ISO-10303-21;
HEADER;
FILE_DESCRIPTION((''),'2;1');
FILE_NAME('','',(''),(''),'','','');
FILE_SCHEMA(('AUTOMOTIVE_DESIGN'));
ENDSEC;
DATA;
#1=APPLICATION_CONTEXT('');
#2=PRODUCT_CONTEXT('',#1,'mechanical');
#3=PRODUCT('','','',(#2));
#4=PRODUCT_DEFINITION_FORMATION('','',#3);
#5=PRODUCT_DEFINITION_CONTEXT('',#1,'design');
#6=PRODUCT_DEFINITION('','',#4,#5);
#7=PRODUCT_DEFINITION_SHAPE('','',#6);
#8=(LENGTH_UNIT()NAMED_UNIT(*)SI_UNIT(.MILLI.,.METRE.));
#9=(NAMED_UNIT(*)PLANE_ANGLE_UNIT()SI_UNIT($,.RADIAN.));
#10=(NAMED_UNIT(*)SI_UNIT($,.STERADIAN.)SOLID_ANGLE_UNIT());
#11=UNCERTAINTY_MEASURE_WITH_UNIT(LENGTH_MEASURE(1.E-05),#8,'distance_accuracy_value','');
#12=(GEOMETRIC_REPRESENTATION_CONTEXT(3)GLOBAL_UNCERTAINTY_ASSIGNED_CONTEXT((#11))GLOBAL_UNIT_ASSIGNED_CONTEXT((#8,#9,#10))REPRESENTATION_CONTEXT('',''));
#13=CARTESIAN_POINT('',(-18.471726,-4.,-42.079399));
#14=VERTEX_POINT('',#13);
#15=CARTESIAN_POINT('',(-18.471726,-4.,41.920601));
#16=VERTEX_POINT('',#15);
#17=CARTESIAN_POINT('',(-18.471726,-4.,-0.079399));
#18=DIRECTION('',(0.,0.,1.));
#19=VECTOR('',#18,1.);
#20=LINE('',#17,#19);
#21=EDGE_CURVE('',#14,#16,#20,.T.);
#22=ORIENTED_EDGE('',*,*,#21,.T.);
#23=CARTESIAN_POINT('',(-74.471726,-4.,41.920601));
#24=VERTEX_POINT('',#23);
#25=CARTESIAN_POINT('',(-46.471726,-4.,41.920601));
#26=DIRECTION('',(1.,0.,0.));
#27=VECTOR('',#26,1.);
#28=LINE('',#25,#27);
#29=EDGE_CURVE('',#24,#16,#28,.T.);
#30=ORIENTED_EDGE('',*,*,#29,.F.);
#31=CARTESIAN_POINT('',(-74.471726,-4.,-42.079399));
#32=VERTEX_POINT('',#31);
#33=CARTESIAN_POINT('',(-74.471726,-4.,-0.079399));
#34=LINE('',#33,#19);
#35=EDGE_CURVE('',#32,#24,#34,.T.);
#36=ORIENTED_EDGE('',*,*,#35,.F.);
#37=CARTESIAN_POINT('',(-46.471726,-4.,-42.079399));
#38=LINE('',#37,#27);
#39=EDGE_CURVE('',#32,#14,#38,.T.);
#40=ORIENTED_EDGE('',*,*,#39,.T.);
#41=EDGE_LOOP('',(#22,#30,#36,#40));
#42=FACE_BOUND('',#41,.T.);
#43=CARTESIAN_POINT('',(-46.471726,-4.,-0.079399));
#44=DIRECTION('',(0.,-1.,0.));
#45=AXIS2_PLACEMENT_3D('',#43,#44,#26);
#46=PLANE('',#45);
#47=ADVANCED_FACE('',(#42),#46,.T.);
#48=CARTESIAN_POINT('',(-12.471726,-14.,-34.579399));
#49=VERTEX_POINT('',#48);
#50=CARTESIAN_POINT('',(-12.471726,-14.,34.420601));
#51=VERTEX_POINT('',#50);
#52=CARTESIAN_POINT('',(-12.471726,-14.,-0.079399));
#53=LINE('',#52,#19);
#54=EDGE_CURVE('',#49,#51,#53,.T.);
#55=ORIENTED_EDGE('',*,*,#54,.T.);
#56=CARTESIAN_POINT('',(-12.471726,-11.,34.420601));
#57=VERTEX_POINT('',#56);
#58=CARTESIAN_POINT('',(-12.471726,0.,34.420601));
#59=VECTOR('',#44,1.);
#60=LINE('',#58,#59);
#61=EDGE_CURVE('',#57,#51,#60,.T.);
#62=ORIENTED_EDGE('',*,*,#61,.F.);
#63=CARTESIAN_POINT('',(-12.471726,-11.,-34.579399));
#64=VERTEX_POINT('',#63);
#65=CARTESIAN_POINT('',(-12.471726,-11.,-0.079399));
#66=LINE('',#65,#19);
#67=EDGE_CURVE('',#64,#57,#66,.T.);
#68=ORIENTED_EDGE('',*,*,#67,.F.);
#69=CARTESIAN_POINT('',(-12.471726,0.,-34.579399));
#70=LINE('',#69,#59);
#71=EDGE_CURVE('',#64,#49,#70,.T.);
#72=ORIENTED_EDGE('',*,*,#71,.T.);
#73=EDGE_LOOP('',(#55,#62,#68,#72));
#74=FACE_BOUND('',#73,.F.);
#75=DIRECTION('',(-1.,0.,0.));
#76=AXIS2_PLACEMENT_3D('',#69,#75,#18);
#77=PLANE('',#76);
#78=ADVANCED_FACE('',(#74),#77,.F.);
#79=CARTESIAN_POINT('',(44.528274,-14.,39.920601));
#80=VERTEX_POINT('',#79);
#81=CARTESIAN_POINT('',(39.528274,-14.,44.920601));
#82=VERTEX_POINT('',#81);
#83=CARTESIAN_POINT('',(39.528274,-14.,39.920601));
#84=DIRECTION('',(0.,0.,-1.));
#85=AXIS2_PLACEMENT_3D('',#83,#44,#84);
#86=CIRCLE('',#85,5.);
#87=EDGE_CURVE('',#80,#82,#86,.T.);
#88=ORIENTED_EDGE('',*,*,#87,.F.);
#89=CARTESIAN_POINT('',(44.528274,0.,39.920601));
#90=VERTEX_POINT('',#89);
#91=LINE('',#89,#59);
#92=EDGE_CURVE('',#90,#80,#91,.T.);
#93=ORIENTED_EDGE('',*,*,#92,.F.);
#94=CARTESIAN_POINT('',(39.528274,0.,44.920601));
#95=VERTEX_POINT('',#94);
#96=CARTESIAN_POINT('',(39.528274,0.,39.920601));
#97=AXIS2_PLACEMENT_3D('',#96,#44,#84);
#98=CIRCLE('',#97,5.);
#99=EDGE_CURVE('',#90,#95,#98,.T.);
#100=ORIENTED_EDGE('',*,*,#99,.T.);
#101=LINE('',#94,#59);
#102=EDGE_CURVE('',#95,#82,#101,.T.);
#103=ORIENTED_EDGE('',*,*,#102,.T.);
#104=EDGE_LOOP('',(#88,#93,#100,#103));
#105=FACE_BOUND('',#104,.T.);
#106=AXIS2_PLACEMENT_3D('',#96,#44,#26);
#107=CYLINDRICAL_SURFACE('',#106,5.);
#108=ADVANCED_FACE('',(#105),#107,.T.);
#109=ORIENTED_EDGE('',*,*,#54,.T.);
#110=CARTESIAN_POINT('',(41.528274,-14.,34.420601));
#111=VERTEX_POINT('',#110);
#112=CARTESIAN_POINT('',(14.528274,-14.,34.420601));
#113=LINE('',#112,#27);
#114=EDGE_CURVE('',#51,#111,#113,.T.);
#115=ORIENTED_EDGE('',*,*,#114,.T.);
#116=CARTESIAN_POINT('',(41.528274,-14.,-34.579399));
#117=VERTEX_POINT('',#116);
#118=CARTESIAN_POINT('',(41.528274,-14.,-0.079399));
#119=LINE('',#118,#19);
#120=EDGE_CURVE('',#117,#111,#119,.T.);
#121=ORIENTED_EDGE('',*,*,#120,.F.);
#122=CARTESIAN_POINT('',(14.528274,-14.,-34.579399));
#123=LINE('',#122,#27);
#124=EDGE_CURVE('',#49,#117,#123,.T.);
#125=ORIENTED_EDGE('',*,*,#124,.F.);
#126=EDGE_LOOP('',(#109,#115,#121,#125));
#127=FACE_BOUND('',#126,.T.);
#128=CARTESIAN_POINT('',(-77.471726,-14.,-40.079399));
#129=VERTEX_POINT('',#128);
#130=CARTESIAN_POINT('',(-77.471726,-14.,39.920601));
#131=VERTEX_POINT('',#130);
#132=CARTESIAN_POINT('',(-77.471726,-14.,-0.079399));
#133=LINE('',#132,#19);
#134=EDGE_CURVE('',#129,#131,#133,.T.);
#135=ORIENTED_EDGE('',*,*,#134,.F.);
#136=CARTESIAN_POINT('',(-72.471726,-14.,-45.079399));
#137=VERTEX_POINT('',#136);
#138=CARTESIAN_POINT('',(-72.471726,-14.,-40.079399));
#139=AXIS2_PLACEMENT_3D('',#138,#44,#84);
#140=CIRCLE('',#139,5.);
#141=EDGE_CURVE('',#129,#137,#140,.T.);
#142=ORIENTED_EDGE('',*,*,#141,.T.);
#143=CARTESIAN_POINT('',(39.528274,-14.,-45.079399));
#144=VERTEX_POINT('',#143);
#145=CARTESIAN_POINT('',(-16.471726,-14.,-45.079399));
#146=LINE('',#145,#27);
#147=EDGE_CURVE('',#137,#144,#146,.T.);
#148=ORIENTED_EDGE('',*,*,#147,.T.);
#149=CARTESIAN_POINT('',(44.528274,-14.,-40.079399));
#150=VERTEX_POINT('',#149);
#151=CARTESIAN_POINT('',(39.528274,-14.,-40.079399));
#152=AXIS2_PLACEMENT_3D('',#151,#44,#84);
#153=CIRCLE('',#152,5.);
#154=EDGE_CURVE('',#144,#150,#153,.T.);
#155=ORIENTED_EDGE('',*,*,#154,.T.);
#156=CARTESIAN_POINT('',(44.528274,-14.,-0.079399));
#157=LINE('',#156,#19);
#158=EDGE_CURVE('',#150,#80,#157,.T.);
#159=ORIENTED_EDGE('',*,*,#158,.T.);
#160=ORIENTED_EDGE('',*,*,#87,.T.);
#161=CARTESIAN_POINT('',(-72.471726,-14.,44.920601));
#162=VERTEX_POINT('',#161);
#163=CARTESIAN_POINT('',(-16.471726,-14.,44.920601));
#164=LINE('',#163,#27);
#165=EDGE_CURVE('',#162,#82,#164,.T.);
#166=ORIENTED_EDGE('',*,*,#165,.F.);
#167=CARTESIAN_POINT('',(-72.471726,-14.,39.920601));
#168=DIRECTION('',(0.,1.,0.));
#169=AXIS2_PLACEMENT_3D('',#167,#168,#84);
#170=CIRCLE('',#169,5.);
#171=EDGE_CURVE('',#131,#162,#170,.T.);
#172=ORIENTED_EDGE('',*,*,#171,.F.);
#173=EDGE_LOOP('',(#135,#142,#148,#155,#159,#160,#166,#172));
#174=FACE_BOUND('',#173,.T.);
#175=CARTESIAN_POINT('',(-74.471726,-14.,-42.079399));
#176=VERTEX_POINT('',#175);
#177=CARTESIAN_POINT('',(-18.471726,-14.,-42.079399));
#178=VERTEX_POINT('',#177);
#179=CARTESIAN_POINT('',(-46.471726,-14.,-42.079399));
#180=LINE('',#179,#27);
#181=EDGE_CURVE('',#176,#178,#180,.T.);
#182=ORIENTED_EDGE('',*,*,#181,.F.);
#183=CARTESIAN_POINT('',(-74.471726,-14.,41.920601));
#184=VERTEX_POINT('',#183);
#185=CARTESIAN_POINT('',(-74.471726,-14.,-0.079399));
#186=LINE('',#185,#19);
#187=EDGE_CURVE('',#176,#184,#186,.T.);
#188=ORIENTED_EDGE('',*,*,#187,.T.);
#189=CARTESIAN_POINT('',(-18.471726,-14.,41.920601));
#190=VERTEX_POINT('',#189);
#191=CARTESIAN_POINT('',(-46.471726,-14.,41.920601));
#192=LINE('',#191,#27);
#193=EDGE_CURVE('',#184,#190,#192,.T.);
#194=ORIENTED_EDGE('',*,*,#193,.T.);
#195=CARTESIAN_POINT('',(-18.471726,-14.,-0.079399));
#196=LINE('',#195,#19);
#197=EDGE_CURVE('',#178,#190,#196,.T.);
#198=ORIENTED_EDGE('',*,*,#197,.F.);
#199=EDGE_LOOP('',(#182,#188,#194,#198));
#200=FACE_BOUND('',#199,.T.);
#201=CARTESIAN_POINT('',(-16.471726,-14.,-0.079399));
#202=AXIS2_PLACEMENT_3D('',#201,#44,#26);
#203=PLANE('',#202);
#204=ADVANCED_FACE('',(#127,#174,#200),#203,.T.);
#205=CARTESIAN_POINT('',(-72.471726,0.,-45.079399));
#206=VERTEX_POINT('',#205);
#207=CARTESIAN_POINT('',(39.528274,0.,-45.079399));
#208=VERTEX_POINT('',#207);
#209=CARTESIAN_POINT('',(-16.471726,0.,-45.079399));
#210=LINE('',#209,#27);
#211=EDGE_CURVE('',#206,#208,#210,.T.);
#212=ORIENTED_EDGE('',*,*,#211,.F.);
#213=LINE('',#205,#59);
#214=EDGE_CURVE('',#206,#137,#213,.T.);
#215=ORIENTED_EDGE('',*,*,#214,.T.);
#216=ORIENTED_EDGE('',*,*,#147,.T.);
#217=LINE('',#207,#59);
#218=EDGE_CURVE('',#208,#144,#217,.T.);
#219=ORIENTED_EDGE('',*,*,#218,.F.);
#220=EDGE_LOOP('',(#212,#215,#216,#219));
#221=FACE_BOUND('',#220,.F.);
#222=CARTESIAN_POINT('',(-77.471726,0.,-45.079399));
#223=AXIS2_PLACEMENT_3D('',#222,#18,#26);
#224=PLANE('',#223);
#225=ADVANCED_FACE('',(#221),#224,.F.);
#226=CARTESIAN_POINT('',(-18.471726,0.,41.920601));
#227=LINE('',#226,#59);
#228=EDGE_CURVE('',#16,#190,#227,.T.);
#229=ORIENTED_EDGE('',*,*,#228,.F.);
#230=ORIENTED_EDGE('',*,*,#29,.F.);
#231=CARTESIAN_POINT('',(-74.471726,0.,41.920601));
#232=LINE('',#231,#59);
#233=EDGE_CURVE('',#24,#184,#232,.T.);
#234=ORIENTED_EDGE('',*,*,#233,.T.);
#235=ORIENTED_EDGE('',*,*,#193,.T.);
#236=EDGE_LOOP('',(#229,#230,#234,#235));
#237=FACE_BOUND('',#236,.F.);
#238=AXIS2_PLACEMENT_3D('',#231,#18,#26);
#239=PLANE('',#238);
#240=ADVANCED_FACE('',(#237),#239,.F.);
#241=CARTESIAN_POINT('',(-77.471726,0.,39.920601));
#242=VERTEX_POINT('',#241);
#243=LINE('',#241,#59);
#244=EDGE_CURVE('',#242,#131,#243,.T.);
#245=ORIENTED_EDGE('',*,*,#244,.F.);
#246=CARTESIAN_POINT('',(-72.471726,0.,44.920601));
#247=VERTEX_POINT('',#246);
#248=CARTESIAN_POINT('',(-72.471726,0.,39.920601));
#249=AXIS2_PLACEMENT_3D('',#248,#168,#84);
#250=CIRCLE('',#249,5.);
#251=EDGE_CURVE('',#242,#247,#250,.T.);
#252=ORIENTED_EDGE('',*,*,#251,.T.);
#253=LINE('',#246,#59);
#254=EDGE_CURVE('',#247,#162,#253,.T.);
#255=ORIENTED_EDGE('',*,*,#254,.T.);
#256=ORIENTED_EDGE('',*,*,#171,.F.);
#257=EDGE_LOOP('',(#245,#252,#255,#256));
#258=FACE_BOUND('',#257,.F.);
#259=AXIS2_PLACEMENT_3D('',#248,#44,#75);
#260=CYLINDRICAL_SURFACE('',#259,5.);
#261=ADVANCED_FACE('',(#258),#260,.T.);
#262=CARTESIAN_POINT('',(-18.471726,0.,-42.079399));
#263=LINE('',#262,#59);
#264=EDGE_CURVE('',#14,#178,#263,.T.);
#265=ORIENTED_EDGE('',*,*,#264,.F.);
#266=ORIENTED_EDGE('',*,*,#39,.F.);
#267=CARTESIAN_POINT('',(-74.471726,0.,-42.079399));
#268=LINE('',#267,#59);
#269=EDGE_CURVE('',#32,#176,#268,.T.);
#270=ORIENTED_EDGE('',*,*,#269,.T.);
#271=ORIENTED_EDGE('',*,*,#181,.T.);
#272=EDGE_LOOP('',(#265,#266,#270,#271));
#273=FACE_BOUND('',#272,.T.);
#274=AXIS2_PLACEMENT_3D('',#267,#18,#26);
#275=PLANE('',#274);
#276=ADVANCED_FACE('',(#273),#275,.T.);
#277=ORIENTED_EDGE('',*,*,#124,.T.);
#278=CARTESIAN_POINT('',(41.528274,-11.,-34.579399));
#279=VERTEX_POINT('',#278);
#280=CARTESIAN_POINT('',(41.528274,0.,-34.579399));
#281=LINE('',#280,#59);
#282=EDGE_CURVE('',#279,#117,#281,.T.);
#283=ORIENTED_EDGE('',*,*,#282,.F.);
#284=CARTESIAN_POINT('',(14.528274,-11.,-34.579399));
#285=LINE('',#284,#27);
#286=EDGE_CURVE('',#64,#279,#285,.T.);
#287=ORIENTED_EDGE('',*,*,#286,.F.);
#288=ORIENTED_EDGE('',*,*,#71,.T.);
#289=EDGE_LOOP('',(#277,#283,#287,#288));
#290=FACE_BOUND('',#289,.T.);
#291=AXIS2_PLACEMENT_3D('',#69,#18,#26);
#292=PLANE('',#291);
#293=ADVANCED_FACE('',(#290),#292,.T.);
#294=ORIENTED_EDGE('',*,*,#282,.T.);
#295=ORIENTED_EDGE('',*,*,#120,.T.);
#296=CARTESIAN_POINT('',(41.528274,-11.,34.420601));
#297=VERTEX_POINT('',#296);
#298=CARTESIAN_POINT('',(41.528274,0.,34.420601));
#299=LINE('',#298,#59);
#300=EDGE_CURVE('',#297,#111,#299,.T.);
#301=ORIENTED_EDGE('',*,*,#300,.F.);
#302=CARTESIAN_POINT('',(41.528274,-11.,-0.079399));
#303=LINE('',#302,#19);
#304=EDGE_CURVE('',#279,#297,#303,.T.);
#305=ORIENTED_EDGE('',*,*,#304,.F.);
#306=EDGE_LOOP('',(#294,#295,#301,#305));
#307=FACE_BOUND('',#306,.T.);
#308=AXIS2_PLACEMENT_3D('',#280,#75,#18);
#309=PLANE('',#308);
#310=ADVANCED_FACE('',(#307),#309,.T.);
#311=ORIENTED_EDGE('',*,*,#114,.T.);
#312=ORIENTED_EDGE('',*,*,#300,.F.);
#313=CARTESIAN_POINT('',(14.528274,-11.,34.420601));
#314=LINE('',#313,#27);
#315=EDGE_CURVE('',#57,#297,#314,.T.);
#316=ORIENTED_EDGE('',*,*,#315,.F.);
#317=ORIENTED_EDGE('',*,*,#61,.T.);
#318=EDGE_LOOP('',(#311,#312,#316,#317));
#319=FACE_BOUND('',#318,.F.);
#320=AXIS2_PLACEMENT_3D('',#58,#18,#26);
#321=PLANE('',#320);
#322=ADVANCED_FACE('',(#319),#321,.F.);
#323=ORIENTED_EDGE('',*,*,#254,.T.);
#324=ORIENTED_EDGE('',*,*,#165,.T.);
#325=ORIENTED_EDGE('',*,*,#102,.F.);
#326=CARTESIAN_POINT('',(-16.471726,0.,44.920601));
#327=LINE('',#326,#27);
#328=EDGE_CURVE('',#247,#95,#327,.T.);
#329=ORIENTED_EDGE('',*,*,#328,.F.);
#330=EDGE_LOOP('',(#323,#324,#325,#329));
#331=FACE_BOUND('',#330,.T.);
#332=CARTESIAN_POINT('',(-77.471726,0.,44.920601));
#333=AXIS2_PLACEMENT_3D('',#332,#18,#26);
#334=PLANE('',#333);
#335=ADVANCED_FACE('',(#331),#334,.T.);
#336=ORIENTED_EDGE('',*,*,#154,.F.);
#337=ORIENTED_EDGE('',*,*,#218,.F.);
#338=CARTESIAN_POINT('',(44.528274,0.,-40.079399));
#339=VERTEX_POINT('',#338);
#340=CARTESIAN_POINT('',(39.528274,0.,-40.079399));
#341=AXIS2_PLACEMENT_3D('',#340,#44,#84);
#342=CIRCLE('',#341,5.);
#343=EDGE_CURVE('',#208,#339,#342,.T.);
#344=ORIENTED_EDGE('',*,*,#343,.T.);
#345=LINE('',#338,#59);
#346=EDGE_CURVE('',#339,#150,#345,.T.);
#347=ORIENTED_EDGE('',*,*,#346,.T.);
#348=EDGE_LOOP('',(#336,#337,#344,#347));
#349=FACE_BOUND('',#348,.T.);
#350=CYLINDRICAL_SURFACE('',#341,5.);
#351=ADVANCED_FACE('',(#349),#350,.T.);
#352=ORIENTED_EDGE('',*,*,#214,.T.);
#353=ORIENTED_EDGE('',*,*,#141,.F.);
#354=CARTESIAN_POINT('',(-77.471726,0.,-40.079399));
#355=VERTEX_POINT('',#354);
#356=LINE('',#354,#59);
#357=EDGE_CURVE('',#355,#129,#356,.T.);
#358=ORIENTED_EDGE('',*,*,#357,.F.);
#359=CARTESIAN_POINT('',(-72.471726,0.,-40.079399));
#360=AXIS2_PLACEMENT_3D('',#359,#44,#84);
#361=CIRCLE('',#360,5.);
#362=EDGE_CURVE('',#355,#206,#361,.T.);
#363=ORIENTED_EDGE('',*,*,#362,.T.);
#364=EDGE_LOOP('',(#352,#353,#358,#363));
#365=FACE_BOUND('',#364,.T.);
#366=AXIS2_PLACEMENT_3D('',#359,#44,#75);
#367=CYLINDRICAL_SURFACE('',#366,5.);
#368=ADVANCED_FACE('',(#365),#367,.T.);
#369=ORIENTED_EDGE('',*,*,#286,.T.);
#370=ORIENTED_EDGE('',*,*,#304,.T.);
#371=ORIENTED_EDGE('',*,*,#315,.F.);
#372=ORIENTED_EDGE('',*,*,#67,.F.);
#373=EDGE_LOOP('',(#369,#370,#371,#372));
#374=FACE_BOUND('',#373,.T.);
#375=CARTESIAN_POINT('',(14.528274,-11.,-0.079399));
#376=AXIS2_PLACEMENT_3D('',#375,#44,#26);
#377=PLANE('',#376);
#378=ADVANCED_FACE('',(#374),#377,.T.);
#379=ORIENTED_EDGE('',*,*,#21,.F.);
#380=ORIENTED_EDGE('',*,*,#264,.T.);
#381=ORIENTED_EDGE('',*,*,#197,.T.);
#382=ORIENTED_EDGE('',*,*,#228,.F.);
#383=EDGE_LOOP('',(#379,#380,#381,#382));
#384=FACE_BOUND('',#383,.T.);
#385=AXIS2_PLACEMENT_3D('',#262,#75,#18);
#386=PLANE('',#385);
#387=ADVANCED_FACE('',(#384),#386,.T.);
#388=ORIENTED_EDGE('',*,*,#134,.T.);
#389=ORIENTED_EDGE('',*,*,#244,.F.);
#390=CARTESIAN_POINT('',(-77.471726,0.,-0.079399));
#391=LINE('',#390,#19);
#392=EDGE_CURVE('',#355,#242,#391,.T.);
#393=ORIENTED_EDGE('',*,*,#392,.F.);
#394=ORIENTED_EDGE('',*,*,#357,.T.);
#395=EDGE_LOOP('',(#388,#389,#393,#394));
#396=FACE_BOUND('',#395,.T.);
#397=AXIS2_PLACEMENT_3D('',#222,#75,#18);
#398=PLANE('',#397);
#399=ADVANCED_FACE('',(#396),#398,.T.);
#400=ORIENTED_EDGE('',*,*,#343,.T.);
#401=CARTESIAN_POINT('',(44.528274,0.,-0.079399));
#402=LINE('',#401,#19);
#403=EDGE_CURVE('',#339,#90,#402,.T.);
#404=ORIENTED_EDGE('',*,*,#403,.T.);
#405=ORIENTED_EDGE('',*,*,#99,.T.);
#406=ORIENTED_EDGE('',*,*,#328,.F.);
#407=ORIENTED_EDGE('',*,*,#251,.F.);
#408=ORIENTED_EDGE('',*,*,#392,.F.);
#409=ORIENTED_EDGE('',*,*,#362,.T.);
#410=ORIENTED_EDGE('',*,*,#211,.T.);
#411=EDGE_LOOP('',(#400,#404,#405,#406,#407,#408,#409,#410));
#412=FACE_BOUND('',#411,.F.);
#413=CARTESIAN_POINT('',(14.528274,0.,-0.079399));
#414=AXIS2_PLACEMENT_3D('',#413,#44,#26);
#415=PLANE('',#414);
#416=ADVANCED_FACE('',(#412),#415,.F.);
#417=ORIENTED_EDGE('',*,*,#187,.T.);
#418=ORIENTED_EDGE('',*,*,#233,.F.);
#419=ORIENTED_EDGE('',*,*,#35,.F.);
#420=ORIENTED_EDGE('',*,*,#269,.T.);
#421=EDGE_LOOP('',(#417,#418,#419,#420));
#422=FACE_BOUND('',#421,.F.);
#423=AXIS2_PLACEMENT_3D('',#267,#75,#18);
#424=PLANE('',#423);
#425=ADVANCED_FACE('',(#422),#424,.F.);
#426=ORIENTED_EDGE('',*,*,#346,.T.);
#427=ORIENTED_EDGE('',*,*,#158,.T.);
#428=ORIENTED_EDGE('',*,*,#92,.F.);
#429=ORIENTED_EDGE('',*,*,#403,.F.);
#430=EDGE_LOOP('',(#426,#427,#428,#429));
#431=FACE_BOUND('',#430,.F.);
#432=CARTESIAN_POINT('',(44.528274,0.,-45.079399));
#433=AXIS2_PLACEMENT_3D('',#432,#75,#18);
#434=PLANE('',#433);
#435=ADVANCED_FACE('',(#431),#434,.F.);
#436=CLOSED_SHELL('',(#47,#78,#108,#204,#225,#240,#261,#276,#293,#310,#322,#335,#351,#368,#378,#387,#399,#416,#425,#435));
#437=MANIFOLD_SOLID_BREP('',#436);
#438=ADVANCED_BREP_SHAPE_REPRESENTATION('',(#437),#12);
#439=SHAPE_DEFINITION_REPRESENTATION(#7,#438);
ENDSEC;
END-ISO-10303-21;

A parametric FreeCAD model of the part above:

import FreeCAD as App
import Part
import Sketcher

V = App.Vector


def edges_at(feature, points):
    """Names of the edges that pass closest to the given points."""
    edges = feature.Shape.Edges
    near = lambda p: min(range(len(edges)), key=lambda i: edges[i].distToShape(Part.Vertex(*p))[0])
    return sorted({f"Edge{near(p) + 1}" for p in points})

doc = App.newDocument("Part")
body = doc.addObject("PartDesign::Body", "Body")

sketch1 = body.newObject("Sketcher::SketchObject", "Sketch")
sketch1.AttachmentSupport = (doc.getObject("XZ_Plane"), [""])
sketch1.MapMode = "FlatFace"
sketch1.addGeometry([
    Part.LineSegment(V(-77, 45, 0), V(-77, -45, 0)),
    Part.LineSegment(V(-77, -45, 0), V(45, -45, 0)),
    Part.LineSegment(V(45, -45, 0), V(45, 45, 0)),
    Part.LineSegment(V(45, 45, 0), V(-77, 45, 0)),
    Part.LineSegment(V(-18, -42, 0), V(-74, -42, 0)),
    Part.LineSegment(V(-74, -42, 0), V(-74, 42, 0)),
    Part.LineSegment(V(-74, 42, 0), V(-18, 42, 0)),
    Part.LineSegment(V(-18, 42, 0), V(-18, -42, 0)),
    Part.LineSegment(V(42, -35, 0), V(-12, -35, 0)),
    Part.LineSegment(V(-12, -35, 0), V(-12, 34, 0)),
    Part.LineSegment(V(-12, 34, 0), V(42, 34, 0)),
    Part.LineSegment(V(42, 34, 0), V(42, -35, 0)),
], False)
sketch1.addConstraint([
    Sketcher.Constraint("Coincident", 0, 2, 1, 1),
    Sketcher.Constraint("Coincident", 1, 2, 2, 1),
    Sketcher.Constraint("Coincident", 2, 2, 3, 1),
    Sketcher.Constraint("Coincident", 3, 2, 0, 1),
    Sketcher.Constraint("Coincident", 4, 2, 5, 1),
    Sketcher.Constraint("Coincident", 5, 2, 6, 1),
    Sketcher.Constraint("Coincident", 6, 2, 7, 1),
    Sketcher.Constraint("Coincident", 7, 2, 4, 1),
    Sketcher.Constraint("Coincident", 8, 2, 9, 1),
    Sketcher.Constraint("Coincident", 9, 2, 10, 1),
    Sketcher.Constraint("Coincident", 10, 2, 11, 1),
    Sketcher.Constraint("Coincident", 11, 2, 8, 1),
    Sketcher.Constraint("Vertical", 0),
    Sketcher.Constraint("Horizontal", 1),
    Sketcher.Constraint("Vertical", 2),
    Sketcher.Constraint("Horizontal", 3),
    Sketcher.Constraint("Horizontal", 4),
    Sketcher.Constraint("Vertical", 5),
    Sketcher.Constraint("Horizontal", 6),
    Sketcher.Constraint("Vertical", 7),
    Sketcher.Constraint("Horizontal", 8),
    Sketcher.Constraint("Vertical", 9),
    Sketcher.Constraint("Horizontal", 10),
    Sketcher.Constraint("Vertical", 11),
    Sketcher.Constraint("DistanceX", 1, 1, 1, 2, 122.0),
    Sketcher.Constraint("DistanceX", 4, 2, 4, 1, 56.0),
    Sketcher.Constraint("DistanceX", 8, 2, 8, 1, 54.0),
    Sketcher.Constraint("DistanceY", 0, 2, 0, 1, 90.0),
    Sketcher.Constraint("DistanceY", 5, 1, 5, 2, 84.0),
    Sketcher.Constraint("DistanceY", 9, 1, 9, 2, 69.0),
    Sketcher.Constraint("DistanceX", 0, 2, 4, 2, 3.0),
    Sketcher.Constraint("DistanceY", 0, 2, 4, 2, 3.0),
    Sketcher.Constraint("DistanceX", 7, 2, 8, 2, 6.0),
    Sketcher.Constraint("DistanceY", 7, 2, 8, 2, 7.5),
    Sketcher.Constraint("DistanceY", 0, 2, -1, 1, 45.079399),
    Sketcher.Constraint("DistanceX", 0, 2, -1, 1, 77.471726),
])
pad1 = body.newObject("PartDesign::Pad", "Pad")
pad1.Profile = sketch1
pad1.Length = 14

sketch2 = body.newObject("Sketcher::SketchObject", "Sketch001")
sketch2.AttachmentSupport = (doc.getObject("XZ_Plane"), [""])
sketch2.MapMode = "FlatFace"
sketch2.addGeometry([
    Part.LineSegment(V(-74, 42, 0), V(-74, -42, 0)),
    Part.LineSegment(V(-74, -42, 0), V(-18, -42, 0)),
    Part.LineSegment(V(-18, -42, 0), V(-18, 42, 0)),
    Part.LineSegment(V(-18, 42, 0), V(-74, 42, 0)),
], False)
sketch2.addConstraint([
    Sketcher.Constraint("Coincident", 0, 2, 1, 1),
    Sketcher.Constraint("Coincident", 1, 2, 2, 1),
    Sketcher.Constraint("Coincident", 2, 2, 3, 1),
    Sketcher.Constraint("Coincident", 3, 2, 0, 1),
    Sketcher.Constraint("Vertical", 0),
    Sketcher.Constraint("Horizontal", 1),
    Sketcher.Constraint("Vertical", 2),
    Sketcher.Constraint("Horizontal", 3),
    Sketcher.Constraint("DistanceX", 1, 1, 1, 2, 56.0),
    Sketcher.Constraint("DistanceY", 0, 2, 0, 1, 84.0),
    Sketcher.Constraint("DistanceY", 0, 2, -1, 1, 42.079399),
    Sketcher.Constraint("DistanceX", 0, 2, -1, 1, 74.471726),
])
pad2 = body.newObject("PartDesign::Pad", "Pad001")
pad2.Profile = sketch2
pad2.Length = 4

sketch3 = body.newObject("Sketcher::SketchObject", "Sketch002")
sketch3.AttachmentSupport = (doc.getObject("XZ_Plane"), [""])
sketch3.MapMode = "FlatFace"
sketch3.addGeometry([
    Part.LineSegment(V(-12, 34, 0), V(-12, -35, 0)),
    Part.LineSegment(V(-12, -35, 0), V(42, -35, 0)),
    Part.LineSegment(V(42, -35, 0), V(42, 34, 0)),
    Part.LineSegment(V(42, 34, 0), V(-12, 34, 0)),
], False)
sketch3.addConstraint([
    Sketcher.Constraint("Coincident", 0, 2, 1, 1),
    Sketcher.Constraint("Coincident", 1, 2, 2, 1),
    Sketcher.Constraint("Coincident", 2, 2, 3, 1),
    Sketcher.Constraint("Coincident", 3, 2, 0, 1),
    Sketcher.Constraint("Vertical", 0),
    Sketcher.Constraint("Horizontal", 1),
    Sketcher.Constraint("Vertical", 2),
    Sketcher.Constraint("Horizontal", 3),
    Sketcher.Constraint("DistanceX", 1, 1, 1, 2, 54.0),
    Sketcher.Constraint("DistanceY", 0, 2, 0, 1, 69.0),
    Sketcher.Constraint("DistanceY", 0, 2, -1, 1, 34.579399),
    Sketcher.Constraint("DistanceX", 0, 2, -1, 1, 12.471726),
])
pad3 = body.newObject("PartDesign::Pad", "Pad002")
pad3.Profile = sketch3
pad3.Length = 11
doc.recompute()

fillet = body.newObject("PartDesign::Fillet", "Fillet")
fillet.Base = (pad3, edges_at(pad3, [
    (-77.472, -7, -45.079),
    (44.528, -7, -45.079),
    (44.528, -7, 44.921),
    (-77.472, -7, 44.921),
]))
fillet.Radius = 5

doc.recompute()
